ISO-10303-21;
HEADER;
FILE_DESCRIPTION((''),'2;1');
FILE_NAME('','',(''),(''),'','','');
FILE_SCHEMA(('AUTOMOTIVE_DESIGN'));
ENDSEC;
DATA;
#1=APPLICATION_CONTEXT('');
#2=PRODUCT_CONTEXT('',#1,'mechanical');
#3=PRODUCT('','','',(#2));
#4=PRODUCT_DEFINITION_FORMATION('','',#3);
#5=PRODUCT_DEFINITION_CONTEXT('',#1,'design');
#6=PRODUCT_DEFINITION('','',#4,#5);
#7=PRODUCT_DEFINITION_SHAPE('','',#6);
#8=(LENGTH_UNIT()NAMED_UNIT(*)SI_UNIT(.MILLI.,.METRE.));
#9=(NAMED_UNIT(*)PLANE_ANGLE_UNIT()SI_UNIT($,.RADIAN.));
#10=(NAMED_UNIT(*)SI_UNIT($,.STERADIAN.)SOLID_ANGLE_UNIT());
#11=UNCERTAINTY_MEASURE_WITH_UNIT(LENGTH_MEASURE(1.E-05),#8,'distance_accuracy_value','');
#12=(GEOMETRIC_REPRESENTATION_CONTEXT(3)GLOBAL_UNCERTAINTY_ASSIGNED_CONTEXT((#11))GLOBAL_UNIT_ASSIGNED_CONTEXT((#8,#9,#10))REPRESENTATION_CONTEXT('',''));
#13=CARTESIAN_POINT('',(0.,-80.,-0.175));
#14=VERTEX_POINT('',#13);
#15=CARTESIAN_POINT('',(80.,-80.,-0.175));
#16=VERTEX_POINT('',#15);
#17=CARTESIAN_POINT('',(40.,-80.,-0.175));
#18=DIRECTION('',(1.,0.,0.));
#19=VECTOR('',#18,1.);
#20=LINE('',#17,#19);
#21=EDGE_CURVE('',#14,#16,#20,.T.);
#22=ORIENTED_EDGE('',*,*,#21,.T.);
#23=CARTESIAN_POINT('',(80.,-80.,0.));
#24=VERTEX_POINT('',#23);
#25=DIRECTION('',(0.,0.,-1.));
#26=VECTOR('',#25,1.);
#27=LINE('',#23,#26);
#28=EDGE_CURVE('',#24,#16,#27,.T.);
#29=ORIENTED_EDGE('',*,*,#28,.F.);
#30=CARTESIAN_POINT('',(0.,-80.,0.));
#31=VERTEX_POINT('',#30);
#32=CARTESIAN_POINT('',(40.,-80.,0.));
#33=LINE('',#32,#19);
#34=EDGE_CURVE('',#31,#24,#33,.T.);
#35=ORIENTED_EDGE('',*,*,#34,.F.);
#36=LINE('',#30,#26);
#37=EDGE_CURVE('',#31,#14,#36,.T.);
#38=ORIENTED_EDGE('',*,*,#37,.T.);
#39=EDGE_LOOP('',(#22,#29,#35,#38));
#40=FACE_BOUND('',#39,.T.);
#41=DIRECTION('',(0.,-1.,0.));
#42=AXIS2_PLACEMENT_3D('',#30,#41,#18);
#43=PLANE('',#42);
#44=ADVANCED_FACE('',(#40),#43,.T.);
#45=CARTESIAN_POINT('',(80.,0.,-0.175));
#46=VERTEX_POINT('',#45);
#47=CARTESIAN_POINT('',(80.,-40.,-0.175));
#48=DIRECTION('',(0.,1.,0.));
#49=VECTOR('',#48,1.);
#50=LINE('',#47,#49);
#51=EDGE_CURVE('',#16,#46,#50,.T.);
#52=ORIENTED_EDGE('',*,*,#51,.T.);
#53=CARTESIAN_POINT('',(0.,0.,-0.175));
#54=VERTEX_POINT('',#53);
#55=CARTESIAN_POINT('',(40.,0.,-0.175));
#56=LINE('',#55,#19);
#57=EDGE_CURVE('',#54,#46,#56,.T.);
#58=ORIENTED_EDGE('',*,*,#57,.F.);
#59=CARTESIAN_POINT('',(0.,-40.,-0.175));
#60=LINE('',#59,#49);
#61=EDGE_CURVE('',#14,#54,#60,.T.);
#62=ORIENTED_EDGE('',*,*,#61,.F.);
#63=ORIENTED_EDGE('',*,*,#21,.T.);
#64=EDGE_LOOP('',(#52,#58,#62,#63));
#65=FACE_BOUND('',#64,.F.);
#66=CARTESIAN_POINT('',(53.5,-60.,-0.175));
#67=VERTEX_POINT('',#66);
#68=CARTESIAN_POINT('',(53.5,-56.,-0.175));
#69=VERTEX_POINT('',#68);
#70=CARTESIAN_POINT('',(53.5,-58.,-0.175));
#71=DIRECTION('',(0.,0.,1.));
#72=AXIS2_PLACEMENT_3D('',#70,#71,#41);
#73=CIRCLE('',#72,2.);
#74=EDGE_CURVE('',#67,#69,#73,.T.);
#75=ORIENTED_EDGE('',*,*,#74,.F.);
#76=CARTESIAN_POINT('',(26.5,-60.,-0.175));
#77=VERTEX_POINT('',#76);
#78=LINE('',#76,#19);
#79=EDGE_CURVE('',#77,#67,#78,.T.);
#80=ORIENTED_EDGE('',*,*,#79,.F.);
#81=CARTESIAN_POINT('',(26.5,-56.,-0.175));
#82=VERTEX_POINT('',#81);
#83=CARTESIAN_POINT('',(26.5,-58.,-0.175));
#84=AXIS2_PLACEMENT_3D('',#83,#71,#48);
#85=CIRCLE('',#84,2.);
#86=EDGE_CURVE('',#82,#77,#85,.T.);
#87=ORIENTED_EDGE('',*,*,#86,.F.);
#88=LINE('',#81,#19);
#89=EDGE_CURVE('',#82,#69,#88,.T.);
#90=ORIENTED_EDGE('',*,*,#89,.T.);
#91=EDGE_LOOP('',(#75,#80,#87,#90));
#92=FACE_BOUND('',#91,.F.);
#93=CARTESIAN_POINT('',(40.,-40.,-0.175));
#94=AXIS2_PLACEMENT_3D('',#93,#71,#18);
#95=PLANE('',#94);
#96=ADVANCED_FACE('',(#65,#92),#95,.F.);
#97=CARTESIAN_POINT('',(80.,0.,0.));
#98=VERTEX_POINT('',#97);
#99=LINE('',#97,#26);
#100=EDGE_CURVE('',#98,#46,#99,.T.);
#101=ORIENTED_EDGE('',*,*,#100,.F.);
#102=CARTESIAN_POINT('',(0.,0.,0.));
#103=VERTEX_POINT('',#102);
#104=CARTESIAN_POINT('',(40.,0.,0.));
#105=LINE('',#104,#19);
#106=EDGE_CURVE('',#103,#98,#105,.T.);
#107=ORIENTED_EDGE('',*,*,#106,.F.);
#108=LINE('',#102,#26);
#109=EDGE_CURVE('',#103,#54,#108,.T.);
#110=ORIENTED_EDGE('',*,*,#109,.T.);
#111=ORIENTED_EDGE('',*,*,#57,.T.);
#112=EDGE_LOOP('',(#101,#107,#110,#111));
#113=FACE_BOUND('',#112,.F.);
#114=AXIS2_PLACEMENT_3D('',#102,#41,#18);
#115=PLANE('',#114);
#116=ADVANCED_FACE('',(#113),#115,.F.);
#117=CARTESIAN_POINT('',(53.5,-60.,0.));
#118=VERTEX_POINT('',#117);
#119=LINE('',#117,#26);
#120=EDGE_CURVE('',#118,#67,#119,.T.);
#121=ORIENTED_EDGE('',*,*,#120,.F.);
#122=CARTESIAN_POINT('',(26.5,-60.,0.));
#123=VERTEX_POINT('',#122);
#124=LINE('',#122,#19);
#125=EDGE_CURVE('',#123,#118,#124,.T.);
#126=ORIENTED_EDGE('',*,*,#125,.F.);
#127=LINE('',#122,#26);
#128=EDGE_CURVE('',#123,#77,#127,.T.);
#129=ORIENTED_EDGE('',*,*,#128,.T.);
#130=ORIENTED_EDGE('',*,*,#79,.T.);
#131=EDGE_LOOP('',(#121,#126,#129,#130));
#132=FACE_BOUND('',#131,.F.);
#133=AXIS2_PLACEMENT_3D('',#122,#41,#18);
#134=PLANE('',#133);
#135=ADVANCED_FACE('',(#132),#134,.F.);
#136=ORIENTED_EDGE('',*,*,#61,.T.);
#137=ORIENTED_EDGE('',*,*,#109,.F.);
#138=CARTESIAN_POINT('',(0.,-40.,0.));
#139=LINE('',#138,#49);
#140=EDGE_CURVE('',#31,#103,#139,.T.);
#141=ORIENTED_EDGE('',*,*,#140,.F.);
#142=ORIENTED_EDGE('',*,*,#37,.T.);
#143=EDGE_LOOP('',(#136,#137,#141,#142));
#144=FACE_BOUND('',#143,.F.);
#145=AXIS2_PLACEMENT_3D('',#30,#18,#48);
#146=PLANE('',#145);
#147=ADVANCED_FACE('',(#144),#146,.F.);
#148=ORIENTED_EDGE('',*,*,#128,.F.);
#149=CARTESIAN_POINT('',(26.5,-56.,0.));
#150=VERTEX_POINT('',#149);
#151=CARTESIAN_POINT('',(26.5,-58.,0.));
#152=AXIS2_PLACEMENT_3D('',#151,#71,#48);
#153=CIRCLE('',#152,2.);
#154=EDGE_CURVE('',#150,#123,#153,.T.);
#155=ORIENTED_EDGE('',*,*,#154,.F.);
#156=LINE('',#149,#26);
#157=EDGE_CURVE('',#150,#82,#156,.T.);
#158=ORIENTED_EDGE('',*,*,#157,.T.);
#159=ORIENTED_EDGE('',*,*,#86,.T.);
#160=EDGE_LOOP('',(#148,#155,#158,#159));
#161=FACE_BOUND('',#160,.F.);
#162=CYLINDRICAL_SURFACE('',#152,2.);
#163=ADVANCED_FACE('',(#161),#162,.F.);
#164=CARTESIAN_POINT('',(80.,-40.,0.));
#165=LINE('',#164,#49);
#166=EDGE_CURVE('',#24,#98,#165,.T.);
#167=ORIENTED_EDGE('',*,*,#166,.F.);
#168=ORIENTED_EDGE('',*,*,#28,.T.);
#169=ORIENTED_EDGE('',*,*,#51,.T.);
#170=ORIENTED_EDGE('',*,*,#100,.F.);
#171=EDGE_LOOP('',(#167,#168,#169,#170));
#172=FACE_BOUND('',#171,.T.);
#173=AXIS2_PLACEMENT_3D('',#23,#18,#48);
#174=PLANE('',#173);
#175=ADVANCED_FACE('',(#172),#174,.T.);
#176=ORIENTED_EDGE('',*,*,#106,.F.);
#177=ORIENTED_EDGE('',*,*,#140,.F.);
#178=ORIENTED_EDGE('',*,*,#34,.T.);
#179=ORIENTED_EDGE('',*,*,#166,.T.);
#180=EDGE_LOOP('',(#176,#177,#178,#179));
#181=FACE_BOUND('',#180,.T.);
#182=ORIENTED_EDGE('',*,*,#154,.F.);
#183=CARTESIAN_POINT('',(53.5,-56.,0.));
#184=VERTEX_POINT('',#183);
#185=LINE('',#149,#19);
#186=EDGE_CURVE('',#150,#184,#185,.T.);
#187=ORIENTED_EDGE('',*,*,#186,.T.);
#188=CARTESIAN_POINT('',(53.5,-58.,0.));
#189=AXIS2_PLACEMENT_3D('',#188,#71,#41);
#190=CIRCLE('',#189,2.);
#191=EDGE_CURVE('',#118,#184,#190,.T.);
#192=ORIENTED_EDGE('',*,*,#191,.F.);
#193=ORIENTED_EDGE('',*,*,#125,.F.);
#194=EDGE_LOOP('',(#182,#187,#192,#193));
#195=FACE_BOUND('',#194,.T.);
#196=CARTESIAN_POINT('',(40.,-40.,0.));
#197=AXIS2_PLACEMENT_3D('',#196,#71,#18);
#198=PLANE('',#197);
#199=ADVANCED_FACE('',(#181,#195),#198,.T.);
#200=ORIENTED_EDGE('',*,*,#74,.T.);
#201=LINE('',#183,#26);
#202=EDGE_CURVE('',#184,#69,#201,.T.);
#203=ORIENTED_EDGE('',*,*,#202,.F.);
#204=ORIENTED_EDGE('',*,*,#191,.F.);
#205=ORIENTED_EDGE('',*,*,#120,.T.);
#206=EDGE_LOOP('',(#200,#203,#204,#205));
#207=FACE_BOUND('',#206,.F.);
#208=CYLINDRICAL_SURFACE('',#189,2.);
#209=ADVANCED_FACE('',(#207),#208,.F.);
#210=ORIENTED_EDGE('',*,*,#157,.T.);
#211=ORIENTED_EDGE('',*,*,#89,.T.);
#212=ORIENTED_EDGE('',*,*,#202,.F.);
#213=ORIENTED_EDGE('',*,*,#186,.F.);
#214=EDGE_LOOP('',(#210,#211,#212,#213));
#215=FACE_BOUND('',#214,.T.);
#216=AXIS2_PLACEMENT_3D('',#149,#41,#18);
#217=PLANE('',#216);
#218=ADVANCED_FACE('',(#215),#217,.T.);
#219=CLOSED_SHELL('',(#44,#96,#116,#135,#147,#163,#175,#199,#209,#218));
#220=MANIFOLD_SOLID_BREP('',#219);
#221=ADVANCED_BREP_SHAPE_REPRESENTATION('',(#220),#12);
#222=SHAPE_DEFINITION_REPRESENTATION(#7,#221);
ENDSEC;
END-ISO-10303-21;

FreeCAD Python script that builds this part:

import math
import FreeCAD as App
import Part
import Sketcher
from FreeCAD import Vector
Q = App.Units.Quantity

doc = App.newDocument("Part")
body = doc.addObject("PartDesign::Body", "Body")

sketch1 = body.newObject("Sketcher::SketchObject", "Sketch")
sketch1.AttachmentSupport = (doc.getObject("XY_Plane"), [""])
sketch1.MapMode = "FlatFace"
sketch1.addGeometry(Part.LineSegment(Vector(0, 0, 0), Vector(0, -80, 0)), False)
sketch1.addGeometry(Part.LineSegment(Vector(0, -80, 0), Vector(80, -80, 0)), False)
sketch1.addGeometry(Part.LineSegment(Vector(80, -80, 0), Vector(80, 0, 0)), False)
sketch1.addGeometry(Part.LineSegment(Vector(80, 0, 0), Vector(0, 0, 0)), False)
sketch1.addGeometry(Part.ArcOfCircle(Part.Circle(Vector(26.5, -58, 0), Vector(0, 0, 1), 2), math.radians(90), math.radians(270)), False)
sketch1.addGeometry(Part.LineSegment(Vector(26.5, -56, 0), Vector(53.5, -56, 0)), False)
sketch1.addGeometry(Part.ArcOfCircle(Part.Circle(Vector(53.5, -58, 0), Vector(0, 0, 1), 2), math.radians(-90), math.radians(90)), False)
sketch1.addGeometry(Part.LineSegment(Vector(53.5, -60, 0), Vector(26.5, -60, 0)), False)
sketch1.addConstraint(Sketcher.Constraint("Coincident", 0, 2, 1, 1))
sketch1.addConstraint(Sketcher.Constraint("Coincident", 1, 2, 2, 1))
sketch1.addConstraint(Sketcher.Constraint("Coincident", 2, 2, 3, 1))
sketch1.addConstraint(Sketcher.Constraint("Coincident", 3, 2, 0, 1))
sketch1.addConstraint(Sketcher.Constraint("Tangent", 4, 1, 5, 1))
sketch1.addConstraint(Sketcher.Constraint("Tangent", 5, 2, 6, 2))
sketch1.addConstraint(Sketcher.Constraint("Tangent", 6, 1, 7, 1))
sketch1.addConstraint(Sketcher.Constraint("Tangent", 7, 2, 4, 2))
sketch1.addConstraint(Sketcher.Constraint("Vertical", 0))
sketch1.addConstraint(Sketcher.Constraint("Horizontal", 1))
sketch1.addConstraint(Sketcher.Constraint("Vertical", 2))
sketch1.addConstraint(Sketcher.Constraint("Horizontal", 3))
sketch1.addConstraint(Sketcher.Constraint("Horizontal", 5))
sketch1.addConstraint(Sketcher.Constraint("Horizontal", 7))
sketch1.addConstraint(Sketcher.Constraint("Coincident", 3, 2, -1, 1))
sketch1.addConstraint(Sketcher.Constraint("Equal", 3, 0))
sketch1.addConstraint(Sketcher.Constraint("Radius", 4, Q("2 mm")))
sketch1.addConstraint(Sketcher.Constraint("DistanceX", 1, 1, 1, 2, Q("80 mm")))
sketch1.addConstraint(Sketcher.Constraint("DistanceX", 5, 1, 5, 2, Q("27 mm")))
sketch1.addConstraint(Sketcher.Constraint("DistanceY", 4, 3, -1, 1, Q("58 mm")))
sketch1.addConstraint(Sketcher.Constraint("DistanceX", -1, 1, 4, 3, Q("26.5 mm")))
pad1 = body.newObject("PartDesign::Pad", "Pad")
pad1.Profile = sketch1
pad1.Length = 0.175
pad1.Reversed = True

doc.recompute()
